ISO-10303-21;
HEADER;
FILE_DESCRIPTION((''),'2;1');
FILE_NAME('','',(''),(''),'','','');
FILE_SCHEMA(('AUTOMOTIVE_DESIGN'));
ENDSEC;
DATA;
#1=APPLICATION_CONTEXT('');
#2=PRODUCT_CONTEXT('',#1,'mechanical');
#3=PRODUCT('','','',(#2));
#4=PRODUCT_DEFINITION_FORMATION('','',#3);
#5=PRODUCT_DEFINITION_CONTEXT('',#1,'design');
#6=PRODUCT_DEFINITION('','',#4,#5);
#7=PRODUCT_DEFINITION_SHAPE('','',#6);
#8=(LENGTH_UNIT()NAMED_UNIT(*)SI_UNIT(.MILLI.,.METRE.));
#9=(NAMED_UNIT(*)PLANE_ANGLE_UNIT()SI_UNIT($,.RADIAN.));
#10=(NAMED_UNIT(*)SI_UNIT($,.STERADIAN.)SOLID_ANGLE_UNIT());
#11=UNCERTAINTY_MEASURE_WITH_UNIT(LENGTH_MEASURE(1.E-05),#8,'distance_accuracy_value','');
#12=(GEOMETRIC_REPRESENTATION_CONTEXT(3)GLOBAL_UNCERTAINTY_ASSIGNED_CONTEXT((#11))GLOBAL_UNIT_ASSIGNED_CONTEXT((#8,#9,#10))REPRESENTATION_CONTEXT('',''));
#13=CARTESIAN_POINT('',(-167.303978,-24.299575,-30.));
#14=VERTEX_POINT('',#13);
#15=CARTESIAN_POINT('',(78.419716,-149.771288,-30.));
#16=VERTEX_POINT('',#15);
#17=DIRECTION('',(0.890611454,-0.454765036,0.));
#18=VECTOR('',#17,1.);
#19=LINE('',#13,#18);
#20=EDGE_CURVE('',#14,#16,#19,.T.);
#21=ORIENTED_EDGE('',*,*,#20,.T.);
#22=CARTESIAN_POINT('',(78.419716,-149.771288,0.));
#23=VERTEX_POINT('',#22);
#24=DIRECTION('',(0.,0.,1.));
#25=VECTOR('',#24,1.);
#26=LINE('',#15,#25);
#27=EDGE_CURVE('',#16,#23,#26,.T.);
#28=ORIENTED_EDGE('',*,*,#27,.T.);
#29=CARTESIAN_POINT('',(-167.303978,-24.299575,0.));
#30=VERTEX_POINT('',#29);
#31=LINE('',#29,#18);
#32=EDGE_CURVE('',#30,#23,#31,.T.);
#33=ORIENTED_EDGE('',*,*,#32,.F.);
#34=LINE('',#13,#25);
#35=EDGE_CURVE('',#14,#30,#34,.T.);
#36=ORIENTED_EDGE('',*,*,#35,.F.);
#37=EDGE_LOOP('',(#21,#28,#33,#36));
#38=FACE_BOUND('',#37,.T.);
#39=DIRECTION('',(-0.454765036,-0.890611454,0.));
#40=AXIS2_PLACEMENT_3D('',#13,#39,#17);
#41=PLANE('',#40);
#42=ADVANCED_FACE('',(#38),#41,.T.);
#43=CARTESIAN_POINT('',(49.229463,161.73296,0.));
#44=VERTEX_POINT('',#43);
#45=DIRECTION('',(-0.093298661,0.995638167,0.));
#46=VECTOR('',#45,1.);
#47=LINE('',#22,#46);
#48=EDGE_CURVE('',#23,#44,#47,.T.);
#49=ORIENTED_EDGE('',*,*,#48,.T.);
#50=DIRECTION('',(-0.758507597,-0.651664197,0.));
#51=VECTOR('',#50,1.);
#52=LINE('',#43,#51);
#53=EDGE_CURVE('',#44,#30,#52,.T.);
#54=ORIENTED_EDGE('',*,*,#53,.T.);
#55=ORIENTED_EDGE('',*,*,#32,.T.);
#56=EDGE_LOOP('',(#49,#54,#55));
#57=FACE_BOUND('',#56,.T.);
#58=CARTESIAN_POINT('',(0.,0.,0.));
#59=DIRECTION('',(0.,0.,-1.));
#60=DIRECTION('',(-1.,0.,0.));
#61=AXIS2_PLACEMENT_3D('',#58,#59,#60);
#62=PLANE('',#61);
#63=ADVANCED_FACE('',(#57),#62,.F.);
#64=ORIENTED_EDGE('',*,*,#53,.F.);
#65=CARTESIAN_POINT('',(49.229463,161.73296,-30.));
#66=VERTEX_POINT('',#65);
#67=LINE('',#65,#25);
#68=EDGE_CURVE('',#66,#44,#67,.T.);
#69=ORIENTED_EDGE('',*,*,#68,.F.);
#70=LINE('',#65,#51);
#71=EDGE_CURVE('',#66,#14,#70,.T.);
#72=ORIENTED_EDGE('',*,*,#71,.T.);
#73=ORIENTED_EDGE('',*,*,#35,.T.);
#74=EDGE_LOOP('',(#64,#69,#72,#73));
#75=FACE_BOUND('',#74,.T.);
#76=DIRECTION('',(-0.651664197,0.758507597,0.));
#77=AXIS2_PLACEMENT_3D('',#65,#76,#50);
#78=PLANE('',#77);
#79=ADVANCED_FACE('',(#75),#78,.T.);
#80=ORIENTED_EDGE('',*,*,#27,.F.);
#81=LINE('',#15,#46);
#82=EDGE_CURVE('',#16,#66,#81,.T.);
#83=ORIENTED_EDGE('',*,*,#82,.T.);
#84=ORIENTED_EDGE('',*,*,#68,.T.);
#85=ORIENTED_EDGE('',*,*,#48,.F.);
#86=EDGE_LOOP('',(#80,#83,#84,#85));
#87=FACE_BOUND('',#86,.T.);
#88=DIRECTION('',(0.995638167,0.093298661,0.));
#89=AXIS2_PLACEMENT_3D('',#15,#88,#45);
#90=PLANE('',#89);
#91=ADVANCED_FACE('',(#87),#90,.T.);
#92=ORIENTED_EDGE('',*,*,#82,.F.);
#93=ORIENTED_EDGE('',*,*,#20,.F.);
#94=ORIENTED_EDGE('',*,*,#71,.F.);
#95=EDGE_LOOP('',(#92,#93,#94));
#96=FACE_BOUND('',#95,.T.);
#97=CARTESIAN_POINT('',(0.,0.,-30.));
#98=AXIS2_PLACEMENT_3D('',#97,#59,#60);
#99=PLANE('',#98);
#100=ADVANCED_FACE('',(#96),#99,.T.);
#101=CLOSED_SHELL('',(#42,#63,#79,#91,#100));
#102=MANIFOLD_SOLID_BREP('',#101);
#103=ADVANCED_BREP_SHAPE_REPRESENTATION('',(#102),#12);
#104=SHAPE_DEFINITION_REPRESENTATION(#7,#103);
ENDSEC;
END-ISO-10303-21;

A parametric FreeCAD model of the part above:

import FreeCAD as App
import Part
import Sketcher
from FreeCAD import Vector
Q = App.Units.Quantity

doc = App.newDocument("Part")
body = doc.addObject("PartDesign::Body", "Body")

# Sketch on XY plane
sketch1 = body.newObject("Sketcher::SketchObject", "Sketch")
sketch1.AttachmentSupport = (doc.getObject("XY_Plane"), [""])
sketch1.MapMode = "FlatFace"
sketch1.addGeometry(Part.LineSegment(Vector(78.419716, -149.771288, 0), Vector(49.229463, 161.73296, 0)), False)
sketch1.addGeometry(Part.LineSegment(Vector(49.229463, 161.73296, 0), Vector(-167.303978, -24.299575, 0)), False)
sketch1.addGeometry(Part.LineSegment(Vector(-167.303978, -24.299575, 0), Vector(78.419716, -149.771288, 0)), False)
sketch1.addConstraint(Sketcher.Constraint("Coincident", 0, 2, 1, 1))
sketch1.addConstraint(Sketcher.Constraint("Coincident", 1, 2, 2, 1))
sketch1.addConstraint(Sketcher.Constraint("Coincident", 2, 2, 0, 1))
sketch1.addConstraint(Sketcher.Constraint("Distance", 0, Q("312.86893 mm")))
sketch1.addConstraint(Sketcher.Constraint("DistanceY", -1, 1, 0, 2, Q("161.73296 mm")))
sketch1.addConstraint(Sketcher.Constraint("DistanceX", 1, 2, -1, 1, Q("167.303978 mm")))
sketch1.addConstraint(Sketcher.Constraint("DistanceX", 1, 2, 0, 2, Q("216.533442 mm")))
sketch1.addConstraint(Sketcher.Constraint("DistanceY", 2, 2, 0, 2, Q("311.504248 mm")))
sketch1.addConstraint(Sketcher.Constraint("Distance", 1, Q("285.473003 mm")))
pad1 = body.newObject("PartDesign::Pad", "Pad")
pad1.Profile = sketch1
pad1.Length = 30
pad1.Reversed = True

doc.recompute()
